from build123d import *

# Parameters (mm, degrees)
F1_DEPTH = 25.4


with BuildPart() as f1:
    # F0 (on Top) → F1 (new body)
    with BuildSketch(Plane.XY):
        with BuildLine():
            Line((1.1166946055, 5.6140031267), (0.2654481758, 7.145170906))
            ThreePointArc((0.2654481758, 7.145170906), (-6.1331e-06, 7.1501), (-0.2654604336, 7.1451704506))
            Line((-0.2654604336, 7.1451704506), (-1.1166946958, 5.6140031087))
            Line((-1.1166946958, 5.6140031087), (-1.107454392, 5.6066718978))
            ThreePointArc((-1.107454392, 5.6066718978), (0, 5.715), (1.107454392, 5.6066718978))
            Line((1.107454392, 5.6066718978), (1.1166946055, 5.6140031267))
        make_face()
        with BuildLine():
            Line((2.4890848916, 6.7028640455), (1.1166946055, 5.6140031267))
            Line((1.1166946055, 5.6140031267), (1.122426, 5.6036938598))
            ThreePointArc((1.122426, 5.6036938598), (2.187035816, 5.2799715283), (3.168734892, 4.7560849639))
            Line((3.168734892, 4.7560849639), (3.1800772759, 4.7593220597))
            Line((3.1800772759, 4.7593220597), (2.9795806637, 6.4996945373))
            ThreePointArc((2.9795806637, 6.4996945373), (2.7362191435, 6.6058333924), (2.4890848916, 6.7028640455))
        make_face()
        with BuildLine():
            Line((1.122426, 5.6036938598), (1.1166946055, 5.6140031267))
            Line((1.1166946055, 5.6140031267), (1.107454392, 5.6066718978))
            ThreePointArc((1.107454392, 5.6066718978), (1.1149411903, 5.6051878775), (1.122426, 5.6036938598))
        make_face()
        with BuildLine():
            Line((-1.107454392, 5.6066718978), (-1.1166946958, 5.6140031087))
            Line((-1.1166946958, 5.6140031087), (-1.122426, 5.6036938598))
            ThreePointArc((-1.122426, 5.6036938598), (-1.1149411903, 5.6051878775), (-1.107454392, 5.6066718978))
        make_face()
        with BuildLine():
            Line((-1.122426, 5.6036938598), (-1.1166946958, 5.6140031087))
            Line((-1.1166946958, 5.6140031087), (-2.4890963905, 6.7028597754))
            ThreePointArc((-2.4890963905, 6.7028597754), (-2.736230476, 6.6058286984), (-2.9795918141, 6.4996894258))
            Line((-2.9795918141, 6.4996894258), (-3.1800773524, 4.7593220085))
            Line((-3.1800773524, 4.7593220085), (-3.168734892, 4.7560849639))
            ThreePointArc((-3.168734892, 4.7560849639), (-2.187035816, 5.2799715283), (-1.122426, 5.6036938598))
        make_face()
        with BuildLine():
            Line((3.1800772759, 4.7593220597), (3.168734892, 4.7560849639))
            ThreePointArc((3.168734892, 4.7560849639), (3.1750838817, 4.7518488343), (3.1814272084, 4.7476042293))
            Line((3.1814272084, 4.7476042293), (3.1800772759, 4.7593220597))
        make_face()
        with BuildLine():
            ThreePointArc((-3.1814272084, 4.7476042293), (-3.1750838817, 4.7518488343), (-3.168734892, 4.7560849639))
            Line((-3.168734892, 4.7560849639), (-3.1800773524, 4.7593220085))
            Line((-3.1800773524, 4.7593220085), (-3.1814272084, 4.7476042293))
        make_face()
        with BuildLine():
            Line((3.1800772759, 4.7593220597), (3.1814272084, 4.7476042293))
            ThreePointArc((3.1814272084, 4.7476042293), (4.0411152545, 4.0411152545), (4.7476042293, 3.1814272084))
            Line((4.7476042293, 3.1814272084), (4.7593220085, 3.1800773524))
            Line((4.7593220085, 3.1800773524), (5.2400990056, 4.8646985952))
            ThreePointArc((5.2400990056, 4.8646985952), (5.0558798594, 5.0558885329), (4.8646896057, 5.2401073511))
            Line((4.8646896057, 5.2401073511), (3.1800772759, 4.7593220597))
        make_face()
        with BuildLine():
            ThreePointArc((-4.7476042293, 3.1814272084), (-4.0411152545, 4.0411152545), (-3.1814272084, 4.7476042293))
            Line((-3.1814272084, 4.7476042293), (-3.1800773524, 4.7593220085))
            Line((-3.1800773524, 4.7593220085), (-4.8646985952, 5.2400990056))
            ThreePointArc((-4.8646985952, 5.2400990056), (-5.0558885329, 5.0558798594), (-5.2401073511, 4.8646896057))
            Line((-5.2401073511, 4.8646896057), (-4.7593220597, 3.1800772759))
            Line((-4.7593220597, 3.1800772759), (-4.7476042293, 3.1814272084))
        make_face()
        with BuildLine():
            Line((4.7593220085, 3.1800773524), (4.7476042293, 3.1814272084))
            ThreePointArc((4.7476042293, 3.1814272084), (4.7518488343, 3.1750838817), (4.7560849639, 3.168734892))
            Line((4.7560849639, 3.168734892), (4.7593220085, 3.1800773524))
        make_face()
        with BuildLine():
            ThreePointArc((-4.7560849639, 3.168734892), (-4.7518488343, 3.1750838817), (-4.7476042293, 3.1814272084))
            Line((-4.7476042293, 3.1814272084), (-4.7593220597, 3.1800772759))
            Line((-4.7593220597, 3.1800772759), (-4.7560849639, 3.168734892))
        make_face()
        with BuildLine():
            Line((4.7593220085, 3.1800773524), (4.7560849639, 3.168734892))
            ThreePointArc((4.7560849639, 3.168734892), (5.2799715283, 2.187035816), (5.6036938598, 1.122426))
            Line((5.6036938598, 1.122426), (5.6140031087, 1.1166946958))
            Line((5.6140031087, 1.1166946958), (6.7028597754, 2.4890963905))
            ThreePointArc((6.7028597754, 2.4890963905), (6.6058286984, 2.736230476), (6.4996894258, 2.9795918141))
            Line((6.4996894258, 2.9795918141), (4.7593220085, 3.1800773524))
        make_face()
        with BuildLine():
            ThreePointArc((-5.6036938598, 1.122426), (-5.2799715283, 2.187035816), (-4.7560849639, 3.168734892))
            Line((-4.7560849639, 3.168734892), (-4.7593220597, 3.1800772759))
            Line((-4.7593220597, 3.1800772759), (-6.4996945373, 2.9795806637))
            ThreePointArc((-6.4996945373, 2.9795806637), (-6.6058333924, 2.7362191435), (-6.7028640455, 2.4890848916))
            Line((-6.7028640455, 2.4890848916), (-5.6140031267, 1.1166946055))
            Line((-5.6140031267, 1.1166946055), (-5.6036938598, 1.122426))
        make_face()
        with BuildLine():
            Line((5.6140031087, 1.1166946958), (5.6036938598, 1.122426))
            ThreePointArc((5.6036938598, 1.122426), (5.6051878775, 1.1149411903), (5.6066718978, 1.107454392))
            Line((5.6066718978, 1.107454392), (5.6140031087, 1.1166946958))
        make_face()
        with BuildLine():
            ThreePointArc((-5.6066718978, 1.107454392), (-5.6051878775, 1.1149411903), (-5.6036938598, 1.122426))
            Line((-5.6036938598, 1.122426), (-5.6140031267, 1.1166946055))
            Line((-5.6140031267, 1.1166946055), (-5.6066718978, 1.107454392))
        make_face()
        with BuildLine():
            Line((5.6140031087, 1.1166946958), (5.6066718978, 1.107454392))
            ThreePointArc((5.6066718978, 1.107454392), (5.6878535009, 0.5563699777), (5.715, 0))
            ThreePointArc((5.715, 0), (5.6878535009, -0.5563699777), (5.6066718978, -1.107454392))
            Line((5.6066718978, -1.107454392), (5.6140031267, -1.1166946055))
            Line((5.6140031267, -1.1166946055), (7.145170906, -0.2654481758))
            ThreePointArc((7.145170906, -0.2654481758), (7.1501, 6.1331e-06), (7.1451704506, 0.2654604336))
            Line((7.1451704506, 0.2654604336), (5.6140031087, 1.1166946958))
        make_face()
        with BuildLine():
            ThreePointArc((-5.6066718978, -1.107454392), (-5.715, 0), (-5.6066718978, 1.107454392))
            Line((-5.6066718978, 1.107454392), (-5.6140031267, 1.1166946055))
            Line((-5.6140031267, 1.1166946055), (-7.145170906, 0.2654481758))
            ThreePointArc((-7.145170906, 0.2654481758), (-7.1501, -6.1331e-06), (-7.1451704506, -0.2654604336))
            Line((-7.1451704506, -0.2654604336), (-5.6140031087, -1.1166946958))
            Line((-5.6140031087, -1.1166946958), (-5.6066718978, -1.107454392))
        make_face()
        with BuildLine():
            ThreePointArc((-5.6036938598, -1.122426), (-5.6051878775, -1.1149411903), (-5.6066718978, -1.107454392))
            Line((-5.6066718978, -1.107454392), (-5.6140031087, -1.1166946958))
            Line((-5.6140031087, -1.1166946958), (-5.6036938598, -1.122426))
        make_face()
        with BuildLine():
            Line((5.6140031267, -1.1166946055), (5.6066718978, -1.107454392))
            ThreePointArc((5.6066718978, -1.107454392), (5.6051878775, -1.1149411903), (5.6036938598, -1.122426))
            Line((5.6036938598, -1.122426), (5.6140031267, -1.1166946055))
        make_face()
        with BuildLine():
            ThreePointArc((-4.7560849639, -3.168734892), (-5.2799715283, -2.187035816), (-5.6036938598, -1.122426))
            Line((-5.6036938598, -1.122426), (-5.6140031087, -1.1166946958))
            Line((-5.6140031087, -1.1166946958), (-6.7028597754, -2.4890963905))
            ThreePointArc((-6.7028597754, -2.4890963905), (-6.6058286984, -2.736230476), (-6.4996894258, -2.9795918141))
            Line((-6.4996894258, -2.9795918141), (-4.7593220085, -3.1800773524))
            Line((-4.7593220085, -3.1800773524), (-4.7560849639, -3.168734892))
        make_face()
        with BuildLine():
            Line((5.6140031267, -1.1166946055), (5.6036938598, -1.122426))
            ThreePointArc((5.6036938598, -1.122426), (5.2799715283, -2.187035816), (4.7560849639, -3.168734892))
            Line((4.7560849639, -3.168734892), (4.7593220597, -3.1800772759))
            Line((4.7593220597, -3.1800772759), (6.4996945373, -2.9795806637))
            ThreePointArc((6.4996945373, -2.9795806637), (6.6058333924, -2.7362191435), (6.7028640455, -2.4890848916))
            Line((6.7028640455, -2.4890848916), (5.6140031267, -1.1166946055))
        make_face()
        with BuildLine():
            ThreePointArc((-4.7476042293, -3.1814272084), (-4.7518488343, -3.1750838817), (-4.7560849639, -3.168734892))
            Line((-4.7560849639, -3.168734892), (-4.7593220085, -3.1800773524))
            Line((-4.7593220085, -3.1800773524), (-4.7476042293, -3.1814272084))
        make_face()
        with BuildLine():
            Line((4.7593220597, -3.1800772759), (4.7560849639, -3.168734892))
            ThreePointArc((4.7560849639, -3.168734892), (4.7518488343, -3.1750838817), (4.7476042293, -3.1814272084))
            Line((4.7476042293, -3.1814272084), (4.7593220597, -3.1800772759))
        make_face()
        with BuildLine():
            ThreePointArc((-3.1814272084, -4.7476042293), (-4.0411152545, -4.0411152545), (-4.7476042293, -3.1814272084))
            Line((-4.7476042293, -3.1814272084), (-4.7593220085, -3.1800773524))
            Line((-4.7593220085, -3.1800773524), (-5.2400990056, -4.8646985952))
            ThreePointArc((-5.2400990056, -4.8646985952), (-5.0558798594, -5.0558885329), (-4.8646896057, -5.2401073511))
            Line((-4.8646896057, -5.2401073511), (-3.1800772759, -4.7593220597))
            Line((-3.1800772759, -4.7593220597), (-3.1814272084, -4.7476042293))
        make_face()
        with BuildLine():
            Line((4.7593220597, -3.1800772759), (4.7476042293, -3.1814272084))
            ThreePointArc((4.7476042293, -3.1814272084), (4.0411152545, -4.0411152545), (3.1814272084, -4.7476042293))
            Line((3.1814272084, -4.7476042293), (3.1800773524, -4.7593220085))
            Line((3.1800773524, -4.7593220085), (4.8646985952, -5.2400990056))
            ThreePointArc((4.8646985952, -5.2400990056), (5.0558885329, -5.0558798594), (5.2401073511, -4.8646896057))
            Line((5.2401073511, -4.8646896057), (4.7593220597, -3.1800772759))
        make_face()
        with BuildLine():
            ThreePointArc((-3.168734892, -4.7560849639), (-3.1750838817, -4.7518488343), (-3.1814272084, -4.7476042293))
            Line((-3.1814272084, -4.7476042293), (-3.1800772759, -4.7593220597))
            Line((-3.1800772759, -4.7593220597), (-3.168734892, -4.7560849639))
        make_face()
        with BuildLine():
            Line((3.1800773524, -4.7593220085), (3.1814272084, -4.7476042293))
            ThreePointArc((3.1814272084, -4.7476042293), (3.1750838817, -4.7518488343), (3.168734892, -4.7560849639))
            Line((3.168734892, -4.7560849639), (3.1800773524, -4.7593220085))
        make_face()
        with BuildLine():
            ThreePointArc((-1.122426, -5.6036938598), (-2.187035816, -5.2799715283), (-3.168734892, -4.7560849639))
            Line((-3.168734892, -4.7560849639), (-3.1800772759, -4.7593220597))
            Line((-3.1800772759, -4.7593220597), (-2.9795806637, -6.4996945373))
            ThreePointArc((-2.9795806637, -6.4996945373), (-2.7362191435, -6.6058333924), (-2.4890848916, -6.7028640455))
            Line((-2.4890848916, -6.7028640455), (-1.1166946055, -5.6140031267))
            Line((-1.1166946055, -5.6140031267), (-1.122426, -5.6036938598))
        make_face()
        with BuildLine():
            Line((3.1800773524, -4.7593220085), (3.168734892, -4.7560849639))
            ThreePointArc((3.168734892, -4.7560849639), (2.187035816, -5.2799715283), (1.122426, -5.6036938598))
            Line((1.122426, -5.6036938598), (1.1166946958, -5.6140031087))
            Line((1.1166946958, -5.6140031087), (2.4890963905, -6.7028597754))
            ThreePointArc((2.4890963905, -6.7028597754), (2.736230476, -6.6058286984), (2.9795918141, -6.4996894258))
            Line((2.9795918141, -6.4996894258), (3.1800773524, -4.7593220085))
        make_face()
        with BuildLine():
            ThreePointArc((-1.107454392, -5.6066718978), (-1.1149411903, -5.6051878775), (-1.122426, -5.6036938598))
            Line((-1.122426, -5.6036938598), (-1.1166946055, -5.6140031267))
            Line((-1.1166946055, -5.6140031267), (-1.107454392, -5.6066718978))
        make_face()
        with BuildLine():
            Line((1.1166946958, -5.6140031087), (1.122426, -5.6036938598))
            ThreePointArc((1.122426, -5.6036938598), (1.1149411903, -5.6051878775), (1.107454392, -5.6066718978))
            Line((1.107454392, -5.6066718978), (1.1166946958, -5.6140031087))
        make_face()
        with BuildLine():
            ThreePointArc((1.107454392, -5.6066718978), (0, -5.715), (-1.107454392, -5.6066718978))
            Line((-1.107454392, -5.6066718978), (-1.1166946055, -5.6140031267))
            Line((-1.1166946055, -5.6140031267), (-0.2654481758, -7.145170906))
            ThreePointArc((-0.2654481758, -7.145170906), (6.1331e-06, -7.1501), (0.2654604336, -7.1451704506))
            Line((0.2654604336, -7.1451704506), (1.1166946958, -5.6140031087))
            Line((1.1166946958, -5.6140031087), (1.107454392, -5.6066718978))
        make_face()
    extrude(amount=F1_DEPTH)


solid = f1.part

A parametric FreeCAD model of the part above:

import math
import FreeCAD as App
import Part
import Sketcher
from FreeCAD import Vector
Q = App.Units.Quantity

doc = App.newDocument("Part")
body = doc.addObject("PartDesign::Body", "Body")

sketch1 = body.newObject("Sketcher::SketchObject", "Sketch")
sketch1.AttachmentSupport = (doc.getObject("XY_Plane"), [""])
sketch1.MapMode = "FlatFace"
sketch1.addGeometry([
    Part.LineSegment(Vector(1.116695, 5.614003, 0), Vector(0.265448, 7.145171, 0)),
    Part.ArcOfCircle(Part.Circle(Vector(0, 0, 0), Vector(0, 0, 1), 7.1501), math.radians(87.8724), math.radians(92.127699)),
    Part.LineSegment(Vector(-0.26546, 7.14517, 0), Vector(-1.116695, 5.614003, 0)),
    Part.LineSegment(Vector(-1.116695, 5.614003, 0), Vector(-2.489096, 6.70286, 0)),
    Part.ArcOfCircle(Part.Circle(Vector(0, 0, 0), Vector(0, 0, 1), 7.1501), math.radians(110.3724), math.radians(114.627699)),
    Part.LineSegment(Vector(-2.979592, 6.499689, 0), Vector(-3.180077, 4.759322, 0)),
    Part.LineSegment(Vector(-3.180077, 4.759322, 0), Vector(-4.864699, 5.240099, 0)),
    Part.ArcOfCircle(Part.Circle(Vector(0, 0, 0), Vector(0, 0, 1), 7.1501), math.radians(132.8724), math.radians(137.127699)),
    Part.LineSegment(Vector(-5.240107, 4.86469, 0), Vector(-4.759322, 3.180077, 0)),
    Part.LineSegment(Vector(-4.759322, 3.180077, 0), Vector(-6.499695, 2.979581, 0)),
    Part.ArcOfCircle(Part.Circle(Vector(0, 0, 0), Vector(0, 0, 1), 7.1501), math.radians(155.3724), math.radians(159.627699)),
    Part.LineSegment(Vector(-6.702864, 2.489085, 0), Vector(-5.614003, 1.116695, 0)),
    Part.LineSegment(Vector(-5.614003, 1.116695, 0), Vector(-7.145171, 0.265448, 0)),
    Part.ArcOfCircle(Part.Circle(Vector(0, 0, 0), Vector(0, 0, 1), 7.1501), math.radians(177.8724), math.radians(182.127699)),
    Part.LineSegment(Vector(-7.14517, -0.26546, 0), Vector(-5.614003, -1.116695, 0)),
    Part.LineSegment(Vector(-5.614003, -1.116695, 0), Vector(-6.70286, -2.489096, 0)),
    Part.ArcOfCircle(Part.Circle(Vector(0, 0, 0), Vector(0, 0, 1), 7.1501), math.radians(-159.6276), math.radians(-155.372301)),
    Part.LineSegment(Vector(-6.499689, -2.979592, 0), Vector(-4.759322, -3.180077, 0)),
    Part.LineSegment(Vector(-4.759322, -3.180077, 0), Vector(-5.240099, -4.864699, 0)),
    Part.ArcOfCircle(Part.Circle(Vector(0, 0, 0), Vector(0, 0, 1), 7.1501), math.radians(-137.1276), math.radians(-132.872301)),
    Part.LineSegment(Vector(-4.86469, -5.240107, 0), Vector(-3.180077, -4.759322, 0)),
    Part.LineSegment(Vector(-3.180077, -4.759322, 0), Vector(-2.979581, -6.499695, 0)),
    Part.ArcOfCircle(Part.Circle(Vector(0, 0, 0), Vector(0, 0, 1), 7.1501), math.radians(-114.6276), math.radians(-110.372301)),
    Part.LineSegment(Vector(-2.489085, -6.702864, 0), Vector(-1.116695, -5.614003, 0)),
    Part.LineSegment(Vector(-1.116695, -5.614003, 0), Vector(-0.265448, -7.145171, 0)),
    Part.ArcOfCircle(Part.Circle(Vector(0, 0, 0), Vector(0, 0, 1), 7.1501), math.radians(-92.1276), math.radians(-87.872301)),
    Part.LineSegment(Vector(0.26546, -7.14517, 0), Vector(1.116695, -5.614003, 0)),
    Part.LineSegment(Vector(1.116695, -5.614003, 0), Vector(2.489096, -6.70286, 0)),
    Part.ArcOfCircle(Part.Circle(Vector(0, 0, 0), Vector(0, 0, 1), 7.1501), math.radians(-69.6276), math.radians(-65.372301)),
    Part.LineSegment(Vector(2.979592, -6.499689, 0), Vector(3.180077, -4.759322, 0)),
    Part.LineSegment(Vector(3.180077, -4.759322, 0), Vector(4.864699, -5.240099, 0)),
    Part.ArcOfCircle(Part.Circle(Vector(0, 0, 0), Vector(0, 0, 1), 7.1501), math.radians(-47.1276), math.radians(-42.872301)),
    Part.LineSegment(Vector(5.240107, -4.86469, 0), Vector(4.759322, -3.180077, 0)),
    Part.LineSegment(Vector(4.759322, -3.180077, 0), Vector(6.499695, -2.979581, 0)),
    Part.ArcOfCircle(Part.Circle(Vector(0, 0, 0), Vector(0, 0, 1), 7.1501), math.radians(-24.6276), math.radians(-20.372301)),
    Part.LineSegment(Vector(6.702864, -2.489085, 0), Vector(5.614003, -1.116695, 0)),
    Part.LineSegment(Vector(5.614003, -1.116695, 0), Vector(7.145171, -0.265448, 0)),
    Part.ArcOfCircle(Part.Circle(Vector(0, 0, 0), Vector(0, 0, 1), 7.1501), math.radians(-2.1276), math.radians(2.127699)),
    Part.LineSegment(Vector(7.14517, 0.26546, 0), Vector(5.614003, 1.116695, 0)),
    Part.LineSegment(Vector(5.614003, 1.116695, 0), Vector(6.70286, 2.489096, 0)),
    Part.ArcOfCircle(Part.Circle(Vector(0, 0, 0), Vector(0, 0, 1), 7.1501), math.radians(20.3724), math.radians(24.627699)),
    Part.LineSegment(Vector(6.499689, 2.979592, 0), Vector(4.759322, 3.180077, 0)),
    Part.LineSegment(Vector(4.759322, 3.180077, 0), Vector(5.240099, 4.864699, 0)),
    Part.ArcOfCircle(Part.Circle(Vector(0, 0, 0), Vector(0, 0, 1), 7.1501), math.radians(42.8724), math.radians(47.127699)),
    Part.LineSegment(Vector(4.86469, 5.240107, 0), Vector(3.180077, 4.759322, 0)),
    Part.LineSegment(Vector(3.180077, 4.759322, 0), Vector(2.979581, 6.499695, 0)),
    Part.ArcOfCircle(Part.Circle(Vector(0, 0, 0), Vector(0, 0, 1), 7.1501), math.radians(65.3724), math.radians(69.627699)),
    Part.LineSegment(Vector(2.489085, 6.702864, 0), Vector(1.116695, 5.614003, 0)),
    Part.ArcOfCircle(Part.Circle(Vector(0, -0.000001, 0), Vector(0, 0, 1), 5.714999), math.radians(-101.326519), math.radians(-101.173481)),
    Part.ArcOfCircle(Part.Circle(Vector(0, 0, 0), Vector(0, 0, 1), 5.715), math.radians(-123.673481), math.radians(-101.326519)),
    Part.ArcOfCircle(Part.Circle(Vector(0.000008, 0.000012, 0), Vector(0, 0, 1), 5.715014), math.radians(-123.826519), math.radians(-123.673481)),
    Part.ArcOfCircle(Part.Circle(Vector(0, 0, 0), Vector(0, 0, 1), 5.715), math.radians(-146.173481), math.radians(-123.826519)),
    Part.ArcOfCircle(Part.Circle(Vector(0.000012, 0.000008, 0), Vector(0, 0, 1), 5.715014), math.radians(-146.326519), math.radians(-146.173481)),
    Part.ArcOfCircle(Part.Circle(Vector(0, 0, 0), Vector(0, 0, 1), 5.715), math.radians(-168.673481), math.radians(-146.326519)),
    Part.ArcOfCircle(Part.Circle(Vector(-0.000001, 0, 0), Vector(0, 0, 1), 5.714999), math.radians(-168.826519), math.radians(-168.673481)),
    Part.ArcOfCircle(Part.Circle(Vector(0, 0, 0), Vector(0, 0, 1), 5.715), math.radians(168.826519), math.radians(191.173481)),
    Part.ArcOfCircle(Part.Circle(Vector(-0.000001, 0, 0), Vector(0, 0, 1), 5.714999), math.radians(168.673481), math.radians(168.826519)),
    Part.ArcOfCircle(Part.Circle(Vector(0, 0, 0), Vector(0, 0, 1), 5.715), math.radians(146.326519), math.radians(168.673481)),
    Part.ArcOfCircle(Part.Circle(Vector(0.000012, -0.000008, 0), Vector(0, 0, 1), 5.715014), math.radians(146.173481), math.radians(146.326519)),
    Part.ArcOfCircle(Part.Circle(Vector(0, 0, 0), Vector(0, 0, 1), 5.715), math.radians(123.826519), math.radians(146.173481)),
    Part.ArcOfCircle(Part.Circle(Vector(0.000008, -0.000012, 0), Vector(0, 0, 1), 5.715014), math.radians(123.673481), math.radians(123.826519)),
    Part.ArcOfCircle(Part.Circle(Vector(0, 0, 0), Vector(0, 0, 1), 5.715), math.radians(101.326519), math.radians(123.673481)),
    Part.ArcOfCircle(Part.Circle(Vector(0, 0.000001, 0), Vector(0, 0, 1), 5.714999), math.radians(101.173481), math.radians(101.326519)),
    Part.ArcOfCircle(Part.Circle(Vector(0, 0, 0), Vector(0, 0, 1), 5.715), math.radians(78.826519), math.radians(101.173481)),
    Part.ArcOfCircle(Part.Circle(Vector(0, 0.000001, 0), Vector(0, 0, 1), 5.714999), math.radians(78.673481), math.radians(78.826519)),
    Part.ArcOfCircle(Part.Circle(Vector(0, 0, 0), Vector(0, 0, 1), 5.715), math.radians(56.326519), math.radians(78.673481)),
    Part.ArcOfCircle(Part.Circle(Vector(-0.000008, -0.000012, 0), Vector(0, 0, 1), 5.715014), math.radians(56.173481), math.radians(56.326519)),
    Part.ArcOfCircle(Part.Circle(Vector(0, 0, 0), Vector(0, 0, 1), 5.715), math.radians(33.826519), math.radians(56.173481)),
    Part.ArcOfCircle(Part.Circle(Vector(-0.000012, -0.000008, 0), Vector(0, 0, 1), 5.715014), math.radians(33.673481), math.radians(33.826519)),
    Part.ArcOfCircle(Part.Circle(Vector(0, 0, 0), Vector(0, 0, 1), 5.715), math.radians(11.326519), math.radians(33.673481)),
    Part.ArcOfCircle(Part.Circle(Vector(0.000001, 0, 0), Vector(0, 0, 1), 5.714999), math.radians(11.173481), math.radians(11.326519)),
    Part.ArcOfCircle(Part.Circle(Vector(0, 0, 0), Vector(0, 0, 1), 5.715), math.radians(0), math.radians(11.173481)),
    Part.ArcOfCircle(Part.Circle(Vector(0, 0, 0), Vector(0, 0, 1), 5.715), math.radians(-11.173481), math.radians(0)),
    Part.ArcOfCircle(Part.Circle(Vector(0.000001, 0, 0), Vector(0, 0, 1), 5.714999), math.radians(-11.326519), math.radians(-11.173481)),
    Part.ArcOfCircle(Part.Circle(Vector(0, 0, 0), Vector(0, 0, 1), 5.715), math.radians(-33.673481), math.radians(-11.326519)),
    Part.ArcOfCircle(Part.Circle(Vector(-0.000012, 0.000008, 0), Vector(0, 0, 1), 5.715014), math.radians(-33.826519), math.radians(-33.673481)),
    Part.ArcOfCircle(Part.Circle(Vector(0, 0, 0), Vector(0, 0, 1), 5.715), math.radians(-56.173481), math.radians(-33.826519)),
    Part.ArcOfCircle(Part.Circle(Vector(-0.000008, 0.000012, 0), Vector(0, 0, 1), 5.715014), math.radians(-56.326519), math.radians(-56.173481)),
    Part.ArcOfCircle(Part.Circle(Vector(0, 0, 0), Vector(0, 0, 1), 5.715), math.radians(-78.673481), math.radians(-56.326519)),
    Part.ArcOfCircle(Part.Circle(Vector(0, -0.000001, 0), Vector(0, 0, 1), 5.714999), math.radians(-78.826519), math.radians(-78.673481)),
    Part.ArcOfCircle(Part.Circle(Vector(0, 0, 0), Vector(0, 0, 1), 5.715), math.radians(-101.173481), math.radians(-78.826519)),
], False)
sketch1.addConstraint([
    Sketcher.Constraint("Coincident", 0, 2, 1, 1),
    Sketcher.Constraint("Coincident", 1, 2, 2, 1),
    Sketcher.Constraint("Coincident", 2, 2, 3, 1),
    Sketcher.Constraint("Coincident", 3, 2, 4, 1),
    Sketcher.Constraint("Coincident", 4, 2, 5, 1),
    Sketcher.Constraint("Coincident", 5, 2, 6, 1),
    Sketcher.Constraint("Coincident", 6, 2, 7, 1),
    Sketcher.Constraint("Coincident", 7, 2, 8, 1),
    Sketcher.Constraint("Coincident", 8, 2, 9, 1),
    Sketcher.Constraint("Coincident", 9, 2, 10, 1),
    Sketcher.Constraint("Coincident", 10, 2, 11, 1),
    Sketcher.Constraint("Coincident", 11, 2, 12, 1),
    Sketcher.Constraint("Coincident", 12, 2, 13, 1),
    Sketcher.Constraint("Coincident", 13, 2, 14, 1),
    Sketcher.Constraint("Coincident", 14, 2, 15, 1),
    Sketcher.Constraint("Coincident", 15, 2, 16, 1),
    Sketcher.Constraint("Coincident", 16, 2, 17, 1),
    Sketcher.Constraint("Coincident", 17, 2, 18, 1),
    Sketcher.Constraint("Coincident", 18, 2, 19, 1),
    Sketcher.Constraint("Coincident", 19, 2, 20, 1),
    Sketcher.Constraint("Coincident", 20, 2, 21, 1),
    Sketcher.Constraint("Coincident", 21, 2, 22, 1),
    Sketcher.Constraint("Coincident", 22, 2, 23, 1),
    Sketcher.Constraint("Coincident", 23, 2, 24, 1),
    Sketcher.Constraint("Coincident", 24, 2, 25, 1),
    Sketcher.Constraint("Coincident", 25, 2, 26, 1),
    Sketcher.Constraint("Coincident", 26, 2, 27, 1),
    Sketcher.Constraint("Coincident", 27, 2, 28, 1),
    Sketcher.Constraint("Coincident", 28, 2, 29, 1),
    Sketcher.Constraint("Coincident", 29, 2, 30, 1),
    Sketcher.Constraint("Coincident", 30, 2, 31, 1),
    Sketcher.Constraint("Coincident", 31, 2, 32, 1),
    Sketcher.Constraint("Coincident", 32, 2, 33, 1),
    Sketcher.Constraint("Coincident", 33, 2, 34, 1),
    Sketcher.Constraint("Coincident", 34, 2, 35, 1),
    Sketcher.Constraint("Coincident", 35, 2, 36, 1),
    Sketcher.Constraint("Coincident", 36, 2, 37, 1),
    Sketcher.Constraint("Coincident", 37, 2, 38, 1),
    Sketcher.Constraint("Coincident", 38, 2, 39, 1),
    Sketcher.Constraint("Coincident", 39, 2, 40, 1),
    Sketcher.Constraint("Coincident", 40, 2, 41, 1),
    Sketcher.Constraint("Coincident", 41, 2, 42, 1),
    Sketcher.Constraint("Coincident", 42, 2, 43, 1),
    Sketcher.Constraint("Coincident", 43, 2, 44, 1),
    Sketcher.Constraint("Coincident", 44, 2, 45, 1),
    Sketcher.Constraint("Coincident", 45, 2, 46, 1),
    Sketcher.Constraint("Coincident", 46, 2, 47, 1),
    Sketcher.Constraint("Coincident", 47, 2, 0, 1),
    Sketcher.Constraint("Coincident", 48, 1, 49, 2),
    Sketcher.Constraint("Coincident", 49, 1, 50, 2),
    Sketcher.Constraint("Coincident", 50, 1, 51, 2),
    Sketcher.Constraint("Coincident", 51, 1, 52, 2),
    Sketcher.Constraint("Coincident", 52, 1, 53, 2),
    Sketcher.Constraint("Coincident", 53, 1, 54, 2),
    Sketcher.Constraint("Coincident", 54, 1, 55, 2),
    Sketcher.Constraint("Coincident", 55, 1, 56, 2),
    Sketcher.Constraint("Coincident", 56, 1, 57, 2),
    Sketcher.Constraint("Coincident", 57, 1, 58, 2),
    Sketcher.Constraint("Coincident", 58, 1, 59, 2),
    Sketcher.Constraint("Coincident", 59, 1, 60, 2),
    Sketcher.Constraint("Coincident", 60, 1, 61, 2),
    Sketcher.Constraint("Coincident", 61, 1, 62, 2),
    Sketcher.Constraint("Coincident", 62, 1, 63, 2),
    Sketcher.Constraint("Coincident", 63, 1, 64, 2),
    Sketcher.Constraint("Coincident", 64, 1, 65, 2),
    Sketcher.Constraint("Coincident", 65, 1, 66, 2),
    Sketcher.Constraint("Coincident", 66, 1, 67, 2),
    Sketcher.Constraint("Coincident", 67, 1, 68, 2),
    Sketcher.Constraint("Coincident", 68, 1, 69, 2),
    Sketcher.Constraint("Coincident", 69, 1, 70, 2),
    Sketcher.Constraint("Coincident", 70, 1, 71, 2),
    Sketcher.Constraint("Coincident", 71, 1, 72, 2),
    Sketcher.Constraint("Coincident", 72, 1, 73, 2),
    Sketcher.Constraint("Coincident", 73, 1, 74, 2),
    Sketcher.Constraint("Coincident", 74, 1, 75, 2),
    Sketcher.Constraint("Coincident", 75, 1, 76, 2),
    Sketcher.Constraint("Coincident", 76, 1, 77, 2),
    Sketcher.Constraint("Coincident", 77, 1, 78, 2),
    Sketcher.Constraint("Coincident", 78, 1, 79, 2),
    Sketcher.Constraint("Coincident", 79, 1, 80, 2),
    Sketcher.Constraint("Coincident", 80, 1, 48, 2),
    Sketcher.Constraint("Coincident", 1, 3, -1, 1),
    Sketcher.Constraint("Coincident", 4, 3, -1, 1),
    Sketcher.Constraint("Coincident", 7, 3, -1, 1),
    Sketcher.Constraint("Coincident", 10, 3, -1, 1),
    Sketcher.Constraint("Coincident", 13, 3, -1, 1),
    Sketcher.Constraint("Coincident", 16, 3, -1, 1),
    Sketcher.Constraint("Coincident", 19, 3, -1, 1),
    Sketcher.Constraint("Coincident", 22, 3, -1, 1),
    Sketcher.Constraint("Coincident", 25, 3, -1, 1),
    Sketcher.Constraint("Coincident", 28, 3, -1, 1),
    Sketcher.Constraint("Coincident", 31, 3, -1, 1),
    Sketcher.Constraint("Coincident", 34, 3, -1, 1),
    Sketcher.Constraint("Coincident", 37, 3, -1, 1),
    Sketcher.Constraint("Coincident", 40, 3, -1, 1),
    Sketcher.Constraint("Coincident", 43, 3, -1, 1),
    Sketcher.Constraint("Coincident", 46, 3, -1, 1),
    Sketcher.Constraint("Coincident", 48, 3, -1, 1),
    Sketcher.Constraint("Coincident", 49, 3, -1, 1),
    Sketcher.Constraint("Coincident", 51, 3, -1, 1),
    Sketcher.Constraint("Coincident", 53, 3, -1, 1),
    Sketcher.Constraint("Coincident", 54, 3, -1, 1),
    Sketcher.Constraint("Coincident", 55, 3, -1, 1),
    Sketcher.Constraint("Coincident", 56, 3, -1, 1),
    Sketcher.Constraint("Coincident", 57, 3, -1, 1),
    Sketcher.Constraint("Coincident", 59, 3, -1, 1),
    Sketcher.Constraint("Coincident", 61, 3, -1, 1),
    Sketcher.Constraint("Coincident", 62, 3, -1, 1),
    Sketcher.Constraint("Coincident", 63, 3, -1, 1),
    Sketcher.Constraint("Coincident", 64, 3, -1, 1),
    Sketcher.Constraint("Coincident", 65, 3, -1, 1),
    Sketcher.Constraint("Coincident", 67, 3, -1, 1),
    Sketcher.Constraint("Coincident", 69, 3, -1, 1),
    Sketcher.Constraint("Coincident", 70, 3, -1, 1),
    Sketcher.Constraint("Coincident", 71, 3, -1, 1),
    Sketcher.Constraint("Coincident", 72, 3, -1, 1),
    Sketcher.Constraint("Coincident", 73, 3, -1, 1),
    Sketcher.Constraint("Coincident", 74, 3, -1, 1),
    Sketcher.Constraint("Coincident", 76, 3, -1, 1),
    Sketcher.Constraint("Coincident", 78, 3, -1, 1),
    Sketcher.Constraint("Coincident", 79, 3, -1, 1),
    Sketcher.Constraint("Coincident", 80, 3, -1, 1),
    Sketcher.Constraint("Coincident", 52, 3, 50, 3),
    Sketcher.Constraint("Coincident", 60, 3, 58, 3),
    Sketcher.Constraint("Coincident", 68, 3, 66, 3),
    Sketcher.Constraint("Coincident", 77, 3, 75, 3),
    Sketcher.Constraint("PointOnObject", 71, 1, -1),
    Sketcher.Constraint("Radius", 48, Q("0.225 in")),
    Sketcher.Constraint("Radius", 53, Q("0.225 in")),
    Sketcher.Constraint("Radius", 61, Q("0.225 in")),
    Sketcher.Constraint("Radius", 69, Q("0.225 in")),
    Sketcher.Constraint("Radius", 1, Q("0.2815 in")),
    Sketcher.Constraint("Radius", 4, Q("0.2815 in")),
    Sketcher.Constraint("Radius", 7, Q("0.2815 in")),
    Sketcher.Constraint("Radius", 10, Q("0.2815 in")),
    Sketcher.Constraint("Radius", 13, Q("0.2815 in")),
    Sketcher.Constraint("Radius", 16, Q("0.2815 in")),
    Sketcher.Constraint("Radius", 19, Q("0.2815 in")),
    Sketcher.Constraint("Radius", 22, Q("0.2815 in")),
    Sketcher.Constraint("Radius", 25, Q("0.2815 in")),
    Sketcher.Constraint("Radius", 28, Q("0.2815 in")),
    Sketcher.Constraint("Radius", 31, Q("0.2815 in")),
    Sketcher.Constraint("Radius", 34, Q("0.2815 in")),
    Sketcher.Constraint("Radius", 37, Q("0.2815 in")),
    Sketcher.Constraint("Radius", 40, Q("0.2815 in")),
    Sketcher.Constraint("Radius", 43, Q("0.2815 in")),
    Sketcher.Constraint("Radius", 46, Q("0.2815 in")),
    Sketcher.Constraint("DistanceX", 5, 2, -1, 1, Q("0.1251999 in")),
    Sketcher.Constraint("DistanceY", -1, 1, 8, 2, Q("0.1251999 in")),
    Sketcher.Constraint("DistanceY", 17, 2, -1, 1, Q("0.1251999 in")),
    Sketcher.Constraint("DistanceX", 20, 2, -1, 1, Q("0.1251999 in")),
    Sketcher.Constraint("DistanceX", -1, 1, 29, 2, Q("0.1251999 in")),
    Sketcher.Constraint("DistanceY", 32, 2, -1, 1, Q("0.1251999 in")),
    Sketcher.Constraint("DistanceY", -1, 1, 41, 2, Q("0.1251999 in")),
    Sketcher.Constraint("DistanceX", -1, 1, 44, 2, Q("0.1251999 in")),
    Sketcher.Constraint("Radius", 50, Q("5.715014 mm")),
    Sketcher.Constraint("Radius", 58, Q("5.715014 mm")),
    Sketcher.Constraint("Radius", 66, Q("5.715014 mm")),
    Sketcher.Constraint("Radius", 75, Q("5.715014 mm")),
    Sketcher.Constraint("DistanceX", 6, 2, -1, 1, Q("4.864699 mm")),
    Sketcher.Constraint("DistanceX", 18, 2, -1, 1, Q("5.240099 mm")),
    Sketcher.Constraint("DistanceX", -1, 1, 30, 2, Q("4.864699 mm")),
    Sketcher.Constraint("DistanceX", -1, 1, 42, 2, Q("5.240099 mm")),
    Sketcher.Constraint("DistanceX", -1, 1, 0, 2, Q("0.265448 mm")),
    Sketcher.Constraint("DistanceX", 1, 2, -1, 1, Q("0.26546 mm")),
    Sketcher.Constraint("DistanceY", -1, 1, 3, 2, Q("6.70286 mm")),
    Sketcher.Constraint("DistanceX", 4, 2, -1, 1, Q("2.979592 mm")),
    Sketcher.Constraint("DistanceY", -1, 1, 7, 2, Q("4.86469 mm")),
    Sketcher.Constraint("DistanceY", -1, 1, 9, 2, Q("2.979581 mm")),
    Sketcher.Constraint("DistanceX", 12, 2, -1, 1, Q("7.145171 mm")),
    Sketcher.Constraint("DistanceX", 13, 2, -1, 1, Q("7.14517 mm")),
    Sketcher.Constraint("DistanceX", 15, 2, -1, 1, Q("6.70286 mm")),
    Sketcher.Constraint("DistanceX", 16, 2, -1, 1, Q("6.499689 mm")),
    Sketcher.Constraint("DistanceX", 19, 2, -1, 1, Q("4.86469 mm")),
    Sketcher.Constraint("DistanceX", 21, 2, -1, 1, Q("2.979581 mm")),
    Sketcher.Constraint("DistanceX", 24, 2, -1, 1, Q("0.265448 mm")),
    Sketcher.Constraint("DistanceX", -1, 1, 25, 2, Q("0.26546 mm")),
    Sketcher.Constraint("DistanceY", 27, 2, -1, 1, Q("6.70286 mm")),
    Sketcher.Constraint("DistanceX", -1, 1, 28, 2, Q("2.979592 mm")),
    Sketcher.Constraint("DistanceY", 31, 2, -1, 1, Q("4.86469 mm")),
    Sketcher.Constraint("DistanceY", 33, 2, -1, 1, Q("2.979581 mm")),
    Sketcher.Constraint("DistanceX", -1, 1, 36, 2, Q("7.145171 mm")),
    Sketcher.Constraint("DistanceX", -1, 1, 37, 2, Q("7.14517 mm")),
    Sketcher.Constraint("DistanceX", -1, 1, 39, 2, Q("6.70286 mm")),
    Sketcher.Constraint("DistanceX", -1, 1, 40, 2, Q("6.499689 mm")),
    Sketcher.Constraint("DistanceX", -1, 1, 43, 2, Q("4.86469 mm")),
    Sketcher.Constraint("DistanceX", -1, 1, 45, 2, Q("2.979581 mm")),
    Sketcher.Constraint("DistanceX", 54, 1, -1, 1, Q("5.606672 mm")),
    Sketcher.Constraint("DistanceX", 55, 1, -1, 1, Q("5.606672 mm")),
    Sketcher.Constraint("DistanceY", -1, 1, 62, 1, Q("5.606672 mm")),
    Sketcher.Constraint("DistanceY", -1, 1, 63, 1, Q("5.606672 mm")),
    Sketcher.Constraint("DistanceX", -1, 1, 70, 1, Q("5.606672 mm")),
    Sketcher.Constraint("DistanceX", -1, 1, 72, 1, Q("5.606672 mm")),
    Sketcher.Constraint("DistanceY", 79, 1, -1, 1, Q("5.606672 mm")),
    Sketcher.Constraint("DistanceY", 80, 1, -1, 1, Q("5.606672 mm")),
    Sketcher.Constraint("Distance", 0, Q("1.751883 mm")),
    Sketcher.Constraint("Distance", 2, Q("1.751877 mm")),
    Sketcher.Constraint("Distance", 3, Q("1.751883 mm")),
    Sketcher.Constraint("Distance", 5, Q("1.751877 mm")),
    Sketcher.Constraint("Distance", 8, Q("1.751877 mm")),
    Sketcher.Constraint("Distance", 11, Q("1.751877 mm")),
    Sketcher.Constraint("Distance", 12, Q("1.751883 mm")),
    Sketcher.Constraint("Distance", 14, Q("1.751877 mm")),
    Sketcher.Constraint("Distance", 15, Q("1.751883 mm")),
    Sketcher.Constraint("Distance", 17, Q("1.751877 mm")),
    Sketcher.Constraint("Distance", 20, Q("1.751877 mm")),
    Sketcher.Constraint("Distance", 23, Q("1.751877 mm")),
    Sketcher.Constraint("Distance", 24, Q("1.751883 mm")),
    Sketcher.Constraint("Distance", 26, Q("1.751877 mm")),
    Sketcher.Constraint("Distance", 27, Q("1.751883 mm")),
    Sketcher.Constraint("Distance", 29, Q("1.751877 mm")),
    Sketcher.Constraint("Distance", 32, Q("1.751877 mm")),
    Sketcher.Constraint("Distance", 35, Q("1.751877 mm")),
    Sketcher.Constraint("Distance", 36, Q("1.751883 mm")),
    Sketcher.Constraint("Distance", 38, Q("1.751877 mm")),
    Sketcher.Constraint("Distance", 39, Q("1.751883 mm")),
    Sketcher.Constraint("Distance", 41, Q("1.751877 mm")),
    Sketcher.Constraint("Distance", 44, Q("1.751877 mm")),
    Sketcher.Constraint("Distance", 47, Q("1.751877 mm")),
    Sketcher.Constraint("DistanceX", 10, 2, -1, 1, Q("6.702864 mm")),
    Sketcher.Constraint("DistanceX", 22, 2, -1, 1, Q("2.489085 mm")),
    Sketcher.Constraint("DistanceX", -1, 1, 34, 2, Q("6.702864 mm")),
    Sketcher.Constraint("DistanceX", -1, 1, 46, 2, Q("2.489085 mm")),
    Sketcher.Constraint("DistanceX", 48, 1, -1, 1, Q("1.122426 mm")),
    Sketcher.Constraint("DistanceX", 49, 1, -1, 1, Q("3.168735 mm")),
    Sketcher.Constraint("DistanceX", 50, 1, -1, 1, Q("3.181427 mm")),
    Sketcher.Constraint("DistanceX", 51, 1, -1, 1, Q("4.747604 mm")),
    Sketcher.Constraint("DistanceX", 52, 1, -1, 1, Q("4.756085 mm")),
    Sketcher.Constraint("DistanceX", 53, 1, -1, 1, Q("5.603694 mm")),
    Sketcher.Constraint("DistanceX", 56, 1, -1, 1, Q("5.603694 mm")),
    Sketcher.Constraint("DistanceX", 57, 1, -1, 1, Q("4.756085 mm")),
    Sketcher.Constraint("DistanceX", 58, 1, -1, 1, Q("4.747604 mm")),
    Sketcher.Constraint("DistanceX", 59, 1, -1, 1, Q("3.181427 mm")),
    Sketcher.Constraint("DistanceX", 60, 1, -1, 1, Q("3.168735 mm")),
    Sketcher.Constraint("DistanceX", 61, 1, -1, 1, Q("1.122426 mm")),
    Sketcher.Constraint("DistanceX", -1, 1, 64, 1, Q("1.122426 mm")),
    Sketcher.Constraint("DistanceX", -1, 1, 65, 1, Q("3.168735 mm")),
    Sketcher.Constraint("DistanceX", -1, 1, 66, 1, Q("3.181427 mm")),
    Sketcher.Constraint("DistanceX", -1, 1, 67, 1, Q("4.747604 mm")),
    Sketcher.Constraint("DistanceX", -1, 1, 68, 1, Q("4.756085 mm")),
    Sketcher.Constraint("DistanceX", -1, 1, 69, 1, Q("5.603694 mm")),
    Sketcher.Constraint("DistanceX", -1, 1, 73, 1, Q("5.603694 mm")),
    Sketcher.Constraint("DistanceX", -1, 1, 74, 1, Q("4.756085 mm")),
    Sketcher.Constraint("DistanceX", -1, 1, 75, 1, Q("4.747604 mm")),
    Sketcher.Constraint("DistanceX", -1, 1, 76, 1, Q("3.181427 mm")),
    Sketcher.Constraint("DistanceX", -1, 1, 77, 1, Q("3.168735 mm")),
    Sketcher.Constraint("DistanceX", -1, 1, 78, 1, Q("1.122426 mm")),
])
pad1 = body.newObject("PartDesign::Pad", "Pad")
pad1.Profile = sketch1
pad1.Length = Q("1 in")

doc.recompute()
